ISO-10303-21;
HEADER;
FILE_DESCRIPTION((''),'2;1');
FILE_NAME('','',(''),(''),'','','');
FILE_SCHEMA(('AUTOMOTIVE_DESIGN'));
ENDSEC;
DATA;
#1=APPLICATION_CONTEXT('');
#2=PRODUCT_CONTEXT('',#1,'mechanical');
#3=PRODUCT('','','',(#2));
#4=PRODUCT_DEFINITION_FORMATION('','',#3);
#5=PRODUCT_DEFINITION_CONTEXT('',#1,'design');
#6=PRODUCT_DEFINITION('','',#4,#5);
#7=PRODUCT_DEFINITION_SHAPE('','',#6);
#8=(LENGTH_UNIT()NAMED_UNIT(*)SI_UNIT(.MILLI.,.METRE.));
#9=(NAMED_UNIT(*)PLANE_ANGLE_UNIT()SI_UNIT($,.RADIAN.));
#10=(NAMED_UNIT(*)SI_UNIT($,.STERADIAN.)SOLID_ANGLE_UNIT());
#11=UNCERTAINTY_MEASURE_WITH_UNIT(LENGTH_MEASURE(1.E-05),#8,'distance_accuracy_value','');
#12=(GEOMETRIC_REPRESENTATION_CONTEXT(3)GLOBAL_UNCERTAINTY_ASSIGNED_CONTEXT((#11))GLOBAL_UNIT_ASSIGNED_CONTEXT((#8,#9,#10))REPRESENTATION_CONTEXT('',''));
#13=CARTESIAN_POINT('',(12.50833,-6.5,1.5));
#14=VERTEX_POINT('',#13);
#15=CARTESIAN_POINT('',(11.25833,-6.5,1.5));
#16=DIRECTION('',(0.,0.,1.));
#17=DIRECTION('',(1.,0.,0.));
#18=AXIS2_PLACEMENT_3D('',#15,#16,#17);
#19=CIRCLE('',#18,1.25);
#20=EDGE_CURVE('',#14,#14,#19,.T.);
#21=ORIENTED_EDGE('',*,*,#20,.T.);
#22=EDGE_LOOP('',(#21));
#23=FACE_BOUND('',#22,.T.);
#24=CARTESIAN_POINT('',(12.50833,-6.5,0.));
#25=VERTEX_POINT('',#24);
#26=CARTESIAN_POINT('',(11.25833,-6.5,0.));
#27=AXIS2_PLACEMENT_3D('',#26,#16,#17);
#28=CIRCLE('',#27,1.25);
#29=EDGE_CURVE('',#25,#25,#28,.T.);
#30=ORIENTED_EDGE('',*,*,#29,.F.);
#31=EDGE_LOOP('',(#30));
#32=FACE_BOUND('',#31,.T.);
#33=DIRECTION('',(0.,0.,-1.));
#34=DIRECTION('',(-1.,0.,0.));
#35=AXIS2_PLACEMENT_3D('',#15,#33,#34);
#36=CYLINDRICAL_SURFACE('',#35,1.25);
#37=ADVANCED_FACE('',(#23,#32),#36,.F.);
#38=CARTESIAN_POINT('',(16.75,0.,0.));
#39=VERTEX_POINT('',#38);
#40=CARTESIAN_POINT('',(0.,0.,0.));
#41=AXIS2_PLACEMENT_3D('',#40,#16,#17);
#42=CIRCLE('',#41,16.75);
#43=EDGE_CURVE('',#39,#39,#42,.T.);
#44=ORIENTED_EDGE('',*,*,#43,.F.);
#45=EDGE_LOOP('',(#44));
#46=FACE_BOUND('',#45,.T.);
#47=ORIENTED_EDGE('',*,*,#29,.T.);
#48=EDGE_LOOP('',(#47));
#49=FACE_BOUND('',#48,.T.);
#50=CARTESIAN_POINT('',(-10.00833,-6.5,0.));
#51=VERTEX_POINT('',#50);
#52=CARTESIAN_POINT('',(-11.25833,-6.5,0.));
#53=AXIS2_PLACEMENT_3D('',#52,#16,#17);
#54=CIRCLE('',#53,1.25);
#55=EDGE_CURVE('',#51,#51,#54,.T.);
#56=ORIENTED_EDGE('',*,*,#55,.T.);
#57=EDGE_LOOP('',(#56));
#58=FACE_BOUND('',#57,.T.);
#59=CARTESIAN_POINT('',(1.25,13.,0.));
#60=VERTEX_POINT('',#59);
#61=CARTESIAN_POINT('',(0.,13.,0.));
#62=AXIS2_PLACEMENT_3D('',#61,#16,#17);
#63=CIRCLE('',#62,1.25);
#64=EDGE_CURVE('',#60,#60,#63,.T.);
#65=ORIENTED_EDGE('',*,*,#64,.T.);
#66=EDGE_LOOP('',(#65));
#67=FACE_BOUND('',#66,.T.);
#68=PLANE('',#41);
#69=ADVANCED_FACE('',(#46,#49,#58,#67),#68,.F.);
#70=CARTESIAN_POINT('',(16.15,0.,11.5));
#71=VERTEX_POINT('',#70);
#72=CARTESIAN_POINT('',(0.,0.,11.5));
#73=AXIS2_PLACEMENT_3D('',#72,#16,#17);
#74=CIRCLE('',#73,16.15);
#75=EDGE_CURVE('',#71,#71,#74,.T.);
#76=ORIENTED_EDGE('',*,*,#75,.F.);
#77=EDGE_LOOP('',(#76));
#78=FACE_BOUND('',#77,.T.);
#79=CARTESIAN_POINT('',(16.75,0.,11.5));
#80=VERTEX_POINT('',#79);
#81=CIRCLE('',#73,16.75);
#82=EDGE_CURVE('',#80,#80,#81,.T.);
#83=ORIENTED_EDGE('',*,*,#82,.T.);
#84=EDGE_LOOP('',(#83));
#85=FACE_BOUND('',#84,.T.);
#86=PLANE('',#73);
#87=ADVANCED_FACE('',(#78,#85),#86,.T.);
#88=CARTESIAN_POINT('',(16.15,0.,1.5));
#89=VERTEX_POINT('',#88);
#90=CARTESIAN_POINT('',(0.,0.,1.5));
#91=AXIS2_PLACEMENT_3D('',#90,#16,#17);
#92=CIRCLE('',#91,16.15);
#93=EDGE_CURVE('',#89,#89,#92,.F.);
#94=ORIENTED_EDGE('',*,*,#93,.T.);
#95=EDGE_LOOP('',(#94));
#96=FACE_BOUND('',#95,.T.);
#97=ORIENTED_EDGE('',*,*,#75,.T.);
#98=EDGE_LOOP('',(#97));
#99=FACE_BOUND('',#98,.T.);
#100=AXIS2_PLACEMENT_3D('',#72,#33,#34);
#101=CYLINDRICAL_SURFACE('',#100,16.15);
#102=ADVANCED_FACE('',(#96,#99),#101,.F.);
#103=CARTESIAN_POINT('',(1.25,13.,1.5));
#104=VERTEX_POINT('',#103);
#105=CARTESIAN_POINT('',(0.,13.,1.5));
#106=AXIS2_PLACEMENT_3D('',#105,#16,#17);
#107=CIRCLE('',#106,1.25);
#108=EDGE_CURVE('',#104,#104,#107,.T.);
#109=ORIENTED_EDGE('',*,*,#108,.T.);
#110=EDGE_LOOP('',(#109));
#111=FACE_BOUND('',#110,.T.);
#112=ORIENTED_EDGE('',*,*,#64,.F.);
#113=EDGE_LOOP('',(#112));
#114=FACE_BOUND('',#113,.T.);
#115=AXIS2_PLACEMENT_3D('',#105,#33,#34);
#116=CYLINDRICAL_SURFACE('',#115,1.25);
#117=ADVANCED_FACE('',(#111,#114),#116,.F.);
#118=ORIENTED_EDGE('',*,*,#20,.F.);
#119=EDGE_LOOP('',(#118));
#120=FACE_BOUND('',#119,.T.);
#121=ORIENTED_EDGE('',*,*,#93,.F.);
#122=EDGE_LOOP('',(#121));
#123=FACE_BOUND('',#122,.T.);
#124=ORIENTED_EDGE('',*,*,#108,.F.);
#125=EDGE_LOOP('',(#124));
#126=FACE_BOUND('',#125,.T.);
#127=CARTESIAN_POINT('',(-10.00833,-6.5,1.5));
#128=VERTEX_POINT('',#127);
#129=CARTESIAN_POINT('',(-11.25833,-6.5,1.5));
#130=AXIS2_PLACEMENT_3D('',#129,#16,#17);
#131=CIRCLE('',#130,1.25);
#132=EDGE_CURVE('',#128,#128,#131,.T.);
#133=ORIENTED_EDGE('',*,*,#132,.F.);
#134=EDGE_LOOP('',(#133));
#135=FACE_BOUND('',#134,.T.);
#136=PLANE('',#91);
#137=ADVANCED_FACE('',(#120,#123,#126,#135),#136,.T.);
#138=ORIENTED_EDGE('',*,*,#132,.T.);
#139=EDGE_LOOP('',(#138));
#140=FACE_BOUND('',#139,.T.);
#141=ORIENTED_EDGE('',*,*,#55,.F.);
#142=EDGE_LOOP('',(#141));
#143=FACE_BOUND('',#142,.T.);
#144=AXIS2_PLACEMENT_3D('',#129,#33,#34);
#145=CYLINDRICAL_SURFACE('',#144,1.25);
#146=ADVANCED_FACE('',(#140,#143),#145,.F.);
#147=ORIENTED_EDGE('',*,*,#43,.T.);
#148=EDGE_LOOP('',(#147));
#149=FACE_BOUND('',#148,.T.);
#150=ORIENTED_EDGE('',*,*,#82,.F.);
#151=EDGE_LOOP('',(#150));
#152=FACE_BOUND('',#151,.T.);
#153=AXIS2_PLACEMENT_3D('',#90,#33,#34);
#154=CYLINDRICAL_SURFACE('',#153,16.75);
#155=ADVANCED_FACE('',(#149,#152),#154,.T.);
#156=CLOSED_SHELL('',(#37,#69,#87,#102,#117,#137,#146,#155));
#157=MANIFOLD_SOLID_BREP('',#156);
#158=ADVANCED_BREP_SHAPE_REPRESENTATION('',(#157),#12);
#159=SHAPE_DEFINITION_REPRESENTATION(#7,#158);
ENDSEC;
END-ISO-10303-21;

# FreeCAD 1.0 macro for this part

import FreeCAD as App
import Part
import Sketcher
from FreeCAD import Vector

doc = App.newDocument("Part")
body = doc.addObject("PartDesign::Body", "Body")

# Sketch on XY plane
sketch1 = doc.addObject("Sketcher::SketchObject", "Sketch")
body.addObject(sketch1)
sketch1.AttachmentSupport = (doc.XY_Plane, [""])
sketch1.MapMode = "FlatFace"
sketch1.addGeometry([
    Part.Circle(Vector(0, 0, 0), Vector(0, 0, 1), 16.8),
    Part.Circle(Vector(-11.3, -6.5, 0), Vector(0, 0, 1), 1.2),
    Part.Circle(Vector(11.3, -6.5, 0), Vector(0, 0, 1), 1.2),
    Part.Circle(Vector(0, 13, 0), Vector(0, 0, 1), 1.2),
], False)
sketch1.addConstraint([
    Sketcher.Constraint("Coincident", 0, 3, -1, 1),
    Sketcher.Constraint("Equal", 1, 2),
    Sketcher.Constraint("Equal", 2, 3),
    Sketcher.Constraint("Symmetric", 1, 3, 2, 3, -2),
    Sketcher.Constraint("PointOnObject", 3, 3, -2),
    Sketcher.Constraint("Diameter", 0, 33.5),
    Sketcher.Constraint("Diameter", 1, 2.5),
    Sketcher.Constraint("DistanceY", -1, 1, 3, 3, 13.0),
    Sketcher.Constraint("DistanceY", 1, 3, -1, 1, 6.5),
    Sketcher.Constraint("DistanceX", 1, 3, -1, 1, 11.25833),
])
pad1 = doc.addObject("PartDesign::Pad", "Pad")
body.addObject(pad1)
pad1.Profile = sketch1
pad1.Length = 1.5

# Sketch on XY plane
sketch2 = doc.addObject("Sketcher::SketchObject", "Sketch001")
body.addObject(sketch2)
sketch2.AttachmentSupport = (doc.XY_Plane, [""])
sketch2.MapMode = "FlatFace"
sketch2.AttachmentOffset = App.Placement(Vector(0, 0, 1.5), App.Rotation())
sketch2.addGeometry([
    Part.Circle(Vector(0, 0, 0), Vector(0, 0, 1), 17),
    Part.Circle(Vector(0, 0, 0), Vector(0, 0, 1), 16),
], False)
sketch2.addConstraint([
    Sketcher.Constraint("Coincident", 0, 3, -1, 1),
    Sketcher.Constraint("Coincident", 1, 3, -1, 1),
    Sketcher.Constraint("Diameter", 0, 33.5),
    Sketcher.Constraint("Diameter", 1, 32.3),
])
pad2 = doc.addObject("PartDesign::Pad", "Pad001")
body.addObject(pad2)
pad2.Profile = sketch2
pad2.Length = 10

doc.recompute()
